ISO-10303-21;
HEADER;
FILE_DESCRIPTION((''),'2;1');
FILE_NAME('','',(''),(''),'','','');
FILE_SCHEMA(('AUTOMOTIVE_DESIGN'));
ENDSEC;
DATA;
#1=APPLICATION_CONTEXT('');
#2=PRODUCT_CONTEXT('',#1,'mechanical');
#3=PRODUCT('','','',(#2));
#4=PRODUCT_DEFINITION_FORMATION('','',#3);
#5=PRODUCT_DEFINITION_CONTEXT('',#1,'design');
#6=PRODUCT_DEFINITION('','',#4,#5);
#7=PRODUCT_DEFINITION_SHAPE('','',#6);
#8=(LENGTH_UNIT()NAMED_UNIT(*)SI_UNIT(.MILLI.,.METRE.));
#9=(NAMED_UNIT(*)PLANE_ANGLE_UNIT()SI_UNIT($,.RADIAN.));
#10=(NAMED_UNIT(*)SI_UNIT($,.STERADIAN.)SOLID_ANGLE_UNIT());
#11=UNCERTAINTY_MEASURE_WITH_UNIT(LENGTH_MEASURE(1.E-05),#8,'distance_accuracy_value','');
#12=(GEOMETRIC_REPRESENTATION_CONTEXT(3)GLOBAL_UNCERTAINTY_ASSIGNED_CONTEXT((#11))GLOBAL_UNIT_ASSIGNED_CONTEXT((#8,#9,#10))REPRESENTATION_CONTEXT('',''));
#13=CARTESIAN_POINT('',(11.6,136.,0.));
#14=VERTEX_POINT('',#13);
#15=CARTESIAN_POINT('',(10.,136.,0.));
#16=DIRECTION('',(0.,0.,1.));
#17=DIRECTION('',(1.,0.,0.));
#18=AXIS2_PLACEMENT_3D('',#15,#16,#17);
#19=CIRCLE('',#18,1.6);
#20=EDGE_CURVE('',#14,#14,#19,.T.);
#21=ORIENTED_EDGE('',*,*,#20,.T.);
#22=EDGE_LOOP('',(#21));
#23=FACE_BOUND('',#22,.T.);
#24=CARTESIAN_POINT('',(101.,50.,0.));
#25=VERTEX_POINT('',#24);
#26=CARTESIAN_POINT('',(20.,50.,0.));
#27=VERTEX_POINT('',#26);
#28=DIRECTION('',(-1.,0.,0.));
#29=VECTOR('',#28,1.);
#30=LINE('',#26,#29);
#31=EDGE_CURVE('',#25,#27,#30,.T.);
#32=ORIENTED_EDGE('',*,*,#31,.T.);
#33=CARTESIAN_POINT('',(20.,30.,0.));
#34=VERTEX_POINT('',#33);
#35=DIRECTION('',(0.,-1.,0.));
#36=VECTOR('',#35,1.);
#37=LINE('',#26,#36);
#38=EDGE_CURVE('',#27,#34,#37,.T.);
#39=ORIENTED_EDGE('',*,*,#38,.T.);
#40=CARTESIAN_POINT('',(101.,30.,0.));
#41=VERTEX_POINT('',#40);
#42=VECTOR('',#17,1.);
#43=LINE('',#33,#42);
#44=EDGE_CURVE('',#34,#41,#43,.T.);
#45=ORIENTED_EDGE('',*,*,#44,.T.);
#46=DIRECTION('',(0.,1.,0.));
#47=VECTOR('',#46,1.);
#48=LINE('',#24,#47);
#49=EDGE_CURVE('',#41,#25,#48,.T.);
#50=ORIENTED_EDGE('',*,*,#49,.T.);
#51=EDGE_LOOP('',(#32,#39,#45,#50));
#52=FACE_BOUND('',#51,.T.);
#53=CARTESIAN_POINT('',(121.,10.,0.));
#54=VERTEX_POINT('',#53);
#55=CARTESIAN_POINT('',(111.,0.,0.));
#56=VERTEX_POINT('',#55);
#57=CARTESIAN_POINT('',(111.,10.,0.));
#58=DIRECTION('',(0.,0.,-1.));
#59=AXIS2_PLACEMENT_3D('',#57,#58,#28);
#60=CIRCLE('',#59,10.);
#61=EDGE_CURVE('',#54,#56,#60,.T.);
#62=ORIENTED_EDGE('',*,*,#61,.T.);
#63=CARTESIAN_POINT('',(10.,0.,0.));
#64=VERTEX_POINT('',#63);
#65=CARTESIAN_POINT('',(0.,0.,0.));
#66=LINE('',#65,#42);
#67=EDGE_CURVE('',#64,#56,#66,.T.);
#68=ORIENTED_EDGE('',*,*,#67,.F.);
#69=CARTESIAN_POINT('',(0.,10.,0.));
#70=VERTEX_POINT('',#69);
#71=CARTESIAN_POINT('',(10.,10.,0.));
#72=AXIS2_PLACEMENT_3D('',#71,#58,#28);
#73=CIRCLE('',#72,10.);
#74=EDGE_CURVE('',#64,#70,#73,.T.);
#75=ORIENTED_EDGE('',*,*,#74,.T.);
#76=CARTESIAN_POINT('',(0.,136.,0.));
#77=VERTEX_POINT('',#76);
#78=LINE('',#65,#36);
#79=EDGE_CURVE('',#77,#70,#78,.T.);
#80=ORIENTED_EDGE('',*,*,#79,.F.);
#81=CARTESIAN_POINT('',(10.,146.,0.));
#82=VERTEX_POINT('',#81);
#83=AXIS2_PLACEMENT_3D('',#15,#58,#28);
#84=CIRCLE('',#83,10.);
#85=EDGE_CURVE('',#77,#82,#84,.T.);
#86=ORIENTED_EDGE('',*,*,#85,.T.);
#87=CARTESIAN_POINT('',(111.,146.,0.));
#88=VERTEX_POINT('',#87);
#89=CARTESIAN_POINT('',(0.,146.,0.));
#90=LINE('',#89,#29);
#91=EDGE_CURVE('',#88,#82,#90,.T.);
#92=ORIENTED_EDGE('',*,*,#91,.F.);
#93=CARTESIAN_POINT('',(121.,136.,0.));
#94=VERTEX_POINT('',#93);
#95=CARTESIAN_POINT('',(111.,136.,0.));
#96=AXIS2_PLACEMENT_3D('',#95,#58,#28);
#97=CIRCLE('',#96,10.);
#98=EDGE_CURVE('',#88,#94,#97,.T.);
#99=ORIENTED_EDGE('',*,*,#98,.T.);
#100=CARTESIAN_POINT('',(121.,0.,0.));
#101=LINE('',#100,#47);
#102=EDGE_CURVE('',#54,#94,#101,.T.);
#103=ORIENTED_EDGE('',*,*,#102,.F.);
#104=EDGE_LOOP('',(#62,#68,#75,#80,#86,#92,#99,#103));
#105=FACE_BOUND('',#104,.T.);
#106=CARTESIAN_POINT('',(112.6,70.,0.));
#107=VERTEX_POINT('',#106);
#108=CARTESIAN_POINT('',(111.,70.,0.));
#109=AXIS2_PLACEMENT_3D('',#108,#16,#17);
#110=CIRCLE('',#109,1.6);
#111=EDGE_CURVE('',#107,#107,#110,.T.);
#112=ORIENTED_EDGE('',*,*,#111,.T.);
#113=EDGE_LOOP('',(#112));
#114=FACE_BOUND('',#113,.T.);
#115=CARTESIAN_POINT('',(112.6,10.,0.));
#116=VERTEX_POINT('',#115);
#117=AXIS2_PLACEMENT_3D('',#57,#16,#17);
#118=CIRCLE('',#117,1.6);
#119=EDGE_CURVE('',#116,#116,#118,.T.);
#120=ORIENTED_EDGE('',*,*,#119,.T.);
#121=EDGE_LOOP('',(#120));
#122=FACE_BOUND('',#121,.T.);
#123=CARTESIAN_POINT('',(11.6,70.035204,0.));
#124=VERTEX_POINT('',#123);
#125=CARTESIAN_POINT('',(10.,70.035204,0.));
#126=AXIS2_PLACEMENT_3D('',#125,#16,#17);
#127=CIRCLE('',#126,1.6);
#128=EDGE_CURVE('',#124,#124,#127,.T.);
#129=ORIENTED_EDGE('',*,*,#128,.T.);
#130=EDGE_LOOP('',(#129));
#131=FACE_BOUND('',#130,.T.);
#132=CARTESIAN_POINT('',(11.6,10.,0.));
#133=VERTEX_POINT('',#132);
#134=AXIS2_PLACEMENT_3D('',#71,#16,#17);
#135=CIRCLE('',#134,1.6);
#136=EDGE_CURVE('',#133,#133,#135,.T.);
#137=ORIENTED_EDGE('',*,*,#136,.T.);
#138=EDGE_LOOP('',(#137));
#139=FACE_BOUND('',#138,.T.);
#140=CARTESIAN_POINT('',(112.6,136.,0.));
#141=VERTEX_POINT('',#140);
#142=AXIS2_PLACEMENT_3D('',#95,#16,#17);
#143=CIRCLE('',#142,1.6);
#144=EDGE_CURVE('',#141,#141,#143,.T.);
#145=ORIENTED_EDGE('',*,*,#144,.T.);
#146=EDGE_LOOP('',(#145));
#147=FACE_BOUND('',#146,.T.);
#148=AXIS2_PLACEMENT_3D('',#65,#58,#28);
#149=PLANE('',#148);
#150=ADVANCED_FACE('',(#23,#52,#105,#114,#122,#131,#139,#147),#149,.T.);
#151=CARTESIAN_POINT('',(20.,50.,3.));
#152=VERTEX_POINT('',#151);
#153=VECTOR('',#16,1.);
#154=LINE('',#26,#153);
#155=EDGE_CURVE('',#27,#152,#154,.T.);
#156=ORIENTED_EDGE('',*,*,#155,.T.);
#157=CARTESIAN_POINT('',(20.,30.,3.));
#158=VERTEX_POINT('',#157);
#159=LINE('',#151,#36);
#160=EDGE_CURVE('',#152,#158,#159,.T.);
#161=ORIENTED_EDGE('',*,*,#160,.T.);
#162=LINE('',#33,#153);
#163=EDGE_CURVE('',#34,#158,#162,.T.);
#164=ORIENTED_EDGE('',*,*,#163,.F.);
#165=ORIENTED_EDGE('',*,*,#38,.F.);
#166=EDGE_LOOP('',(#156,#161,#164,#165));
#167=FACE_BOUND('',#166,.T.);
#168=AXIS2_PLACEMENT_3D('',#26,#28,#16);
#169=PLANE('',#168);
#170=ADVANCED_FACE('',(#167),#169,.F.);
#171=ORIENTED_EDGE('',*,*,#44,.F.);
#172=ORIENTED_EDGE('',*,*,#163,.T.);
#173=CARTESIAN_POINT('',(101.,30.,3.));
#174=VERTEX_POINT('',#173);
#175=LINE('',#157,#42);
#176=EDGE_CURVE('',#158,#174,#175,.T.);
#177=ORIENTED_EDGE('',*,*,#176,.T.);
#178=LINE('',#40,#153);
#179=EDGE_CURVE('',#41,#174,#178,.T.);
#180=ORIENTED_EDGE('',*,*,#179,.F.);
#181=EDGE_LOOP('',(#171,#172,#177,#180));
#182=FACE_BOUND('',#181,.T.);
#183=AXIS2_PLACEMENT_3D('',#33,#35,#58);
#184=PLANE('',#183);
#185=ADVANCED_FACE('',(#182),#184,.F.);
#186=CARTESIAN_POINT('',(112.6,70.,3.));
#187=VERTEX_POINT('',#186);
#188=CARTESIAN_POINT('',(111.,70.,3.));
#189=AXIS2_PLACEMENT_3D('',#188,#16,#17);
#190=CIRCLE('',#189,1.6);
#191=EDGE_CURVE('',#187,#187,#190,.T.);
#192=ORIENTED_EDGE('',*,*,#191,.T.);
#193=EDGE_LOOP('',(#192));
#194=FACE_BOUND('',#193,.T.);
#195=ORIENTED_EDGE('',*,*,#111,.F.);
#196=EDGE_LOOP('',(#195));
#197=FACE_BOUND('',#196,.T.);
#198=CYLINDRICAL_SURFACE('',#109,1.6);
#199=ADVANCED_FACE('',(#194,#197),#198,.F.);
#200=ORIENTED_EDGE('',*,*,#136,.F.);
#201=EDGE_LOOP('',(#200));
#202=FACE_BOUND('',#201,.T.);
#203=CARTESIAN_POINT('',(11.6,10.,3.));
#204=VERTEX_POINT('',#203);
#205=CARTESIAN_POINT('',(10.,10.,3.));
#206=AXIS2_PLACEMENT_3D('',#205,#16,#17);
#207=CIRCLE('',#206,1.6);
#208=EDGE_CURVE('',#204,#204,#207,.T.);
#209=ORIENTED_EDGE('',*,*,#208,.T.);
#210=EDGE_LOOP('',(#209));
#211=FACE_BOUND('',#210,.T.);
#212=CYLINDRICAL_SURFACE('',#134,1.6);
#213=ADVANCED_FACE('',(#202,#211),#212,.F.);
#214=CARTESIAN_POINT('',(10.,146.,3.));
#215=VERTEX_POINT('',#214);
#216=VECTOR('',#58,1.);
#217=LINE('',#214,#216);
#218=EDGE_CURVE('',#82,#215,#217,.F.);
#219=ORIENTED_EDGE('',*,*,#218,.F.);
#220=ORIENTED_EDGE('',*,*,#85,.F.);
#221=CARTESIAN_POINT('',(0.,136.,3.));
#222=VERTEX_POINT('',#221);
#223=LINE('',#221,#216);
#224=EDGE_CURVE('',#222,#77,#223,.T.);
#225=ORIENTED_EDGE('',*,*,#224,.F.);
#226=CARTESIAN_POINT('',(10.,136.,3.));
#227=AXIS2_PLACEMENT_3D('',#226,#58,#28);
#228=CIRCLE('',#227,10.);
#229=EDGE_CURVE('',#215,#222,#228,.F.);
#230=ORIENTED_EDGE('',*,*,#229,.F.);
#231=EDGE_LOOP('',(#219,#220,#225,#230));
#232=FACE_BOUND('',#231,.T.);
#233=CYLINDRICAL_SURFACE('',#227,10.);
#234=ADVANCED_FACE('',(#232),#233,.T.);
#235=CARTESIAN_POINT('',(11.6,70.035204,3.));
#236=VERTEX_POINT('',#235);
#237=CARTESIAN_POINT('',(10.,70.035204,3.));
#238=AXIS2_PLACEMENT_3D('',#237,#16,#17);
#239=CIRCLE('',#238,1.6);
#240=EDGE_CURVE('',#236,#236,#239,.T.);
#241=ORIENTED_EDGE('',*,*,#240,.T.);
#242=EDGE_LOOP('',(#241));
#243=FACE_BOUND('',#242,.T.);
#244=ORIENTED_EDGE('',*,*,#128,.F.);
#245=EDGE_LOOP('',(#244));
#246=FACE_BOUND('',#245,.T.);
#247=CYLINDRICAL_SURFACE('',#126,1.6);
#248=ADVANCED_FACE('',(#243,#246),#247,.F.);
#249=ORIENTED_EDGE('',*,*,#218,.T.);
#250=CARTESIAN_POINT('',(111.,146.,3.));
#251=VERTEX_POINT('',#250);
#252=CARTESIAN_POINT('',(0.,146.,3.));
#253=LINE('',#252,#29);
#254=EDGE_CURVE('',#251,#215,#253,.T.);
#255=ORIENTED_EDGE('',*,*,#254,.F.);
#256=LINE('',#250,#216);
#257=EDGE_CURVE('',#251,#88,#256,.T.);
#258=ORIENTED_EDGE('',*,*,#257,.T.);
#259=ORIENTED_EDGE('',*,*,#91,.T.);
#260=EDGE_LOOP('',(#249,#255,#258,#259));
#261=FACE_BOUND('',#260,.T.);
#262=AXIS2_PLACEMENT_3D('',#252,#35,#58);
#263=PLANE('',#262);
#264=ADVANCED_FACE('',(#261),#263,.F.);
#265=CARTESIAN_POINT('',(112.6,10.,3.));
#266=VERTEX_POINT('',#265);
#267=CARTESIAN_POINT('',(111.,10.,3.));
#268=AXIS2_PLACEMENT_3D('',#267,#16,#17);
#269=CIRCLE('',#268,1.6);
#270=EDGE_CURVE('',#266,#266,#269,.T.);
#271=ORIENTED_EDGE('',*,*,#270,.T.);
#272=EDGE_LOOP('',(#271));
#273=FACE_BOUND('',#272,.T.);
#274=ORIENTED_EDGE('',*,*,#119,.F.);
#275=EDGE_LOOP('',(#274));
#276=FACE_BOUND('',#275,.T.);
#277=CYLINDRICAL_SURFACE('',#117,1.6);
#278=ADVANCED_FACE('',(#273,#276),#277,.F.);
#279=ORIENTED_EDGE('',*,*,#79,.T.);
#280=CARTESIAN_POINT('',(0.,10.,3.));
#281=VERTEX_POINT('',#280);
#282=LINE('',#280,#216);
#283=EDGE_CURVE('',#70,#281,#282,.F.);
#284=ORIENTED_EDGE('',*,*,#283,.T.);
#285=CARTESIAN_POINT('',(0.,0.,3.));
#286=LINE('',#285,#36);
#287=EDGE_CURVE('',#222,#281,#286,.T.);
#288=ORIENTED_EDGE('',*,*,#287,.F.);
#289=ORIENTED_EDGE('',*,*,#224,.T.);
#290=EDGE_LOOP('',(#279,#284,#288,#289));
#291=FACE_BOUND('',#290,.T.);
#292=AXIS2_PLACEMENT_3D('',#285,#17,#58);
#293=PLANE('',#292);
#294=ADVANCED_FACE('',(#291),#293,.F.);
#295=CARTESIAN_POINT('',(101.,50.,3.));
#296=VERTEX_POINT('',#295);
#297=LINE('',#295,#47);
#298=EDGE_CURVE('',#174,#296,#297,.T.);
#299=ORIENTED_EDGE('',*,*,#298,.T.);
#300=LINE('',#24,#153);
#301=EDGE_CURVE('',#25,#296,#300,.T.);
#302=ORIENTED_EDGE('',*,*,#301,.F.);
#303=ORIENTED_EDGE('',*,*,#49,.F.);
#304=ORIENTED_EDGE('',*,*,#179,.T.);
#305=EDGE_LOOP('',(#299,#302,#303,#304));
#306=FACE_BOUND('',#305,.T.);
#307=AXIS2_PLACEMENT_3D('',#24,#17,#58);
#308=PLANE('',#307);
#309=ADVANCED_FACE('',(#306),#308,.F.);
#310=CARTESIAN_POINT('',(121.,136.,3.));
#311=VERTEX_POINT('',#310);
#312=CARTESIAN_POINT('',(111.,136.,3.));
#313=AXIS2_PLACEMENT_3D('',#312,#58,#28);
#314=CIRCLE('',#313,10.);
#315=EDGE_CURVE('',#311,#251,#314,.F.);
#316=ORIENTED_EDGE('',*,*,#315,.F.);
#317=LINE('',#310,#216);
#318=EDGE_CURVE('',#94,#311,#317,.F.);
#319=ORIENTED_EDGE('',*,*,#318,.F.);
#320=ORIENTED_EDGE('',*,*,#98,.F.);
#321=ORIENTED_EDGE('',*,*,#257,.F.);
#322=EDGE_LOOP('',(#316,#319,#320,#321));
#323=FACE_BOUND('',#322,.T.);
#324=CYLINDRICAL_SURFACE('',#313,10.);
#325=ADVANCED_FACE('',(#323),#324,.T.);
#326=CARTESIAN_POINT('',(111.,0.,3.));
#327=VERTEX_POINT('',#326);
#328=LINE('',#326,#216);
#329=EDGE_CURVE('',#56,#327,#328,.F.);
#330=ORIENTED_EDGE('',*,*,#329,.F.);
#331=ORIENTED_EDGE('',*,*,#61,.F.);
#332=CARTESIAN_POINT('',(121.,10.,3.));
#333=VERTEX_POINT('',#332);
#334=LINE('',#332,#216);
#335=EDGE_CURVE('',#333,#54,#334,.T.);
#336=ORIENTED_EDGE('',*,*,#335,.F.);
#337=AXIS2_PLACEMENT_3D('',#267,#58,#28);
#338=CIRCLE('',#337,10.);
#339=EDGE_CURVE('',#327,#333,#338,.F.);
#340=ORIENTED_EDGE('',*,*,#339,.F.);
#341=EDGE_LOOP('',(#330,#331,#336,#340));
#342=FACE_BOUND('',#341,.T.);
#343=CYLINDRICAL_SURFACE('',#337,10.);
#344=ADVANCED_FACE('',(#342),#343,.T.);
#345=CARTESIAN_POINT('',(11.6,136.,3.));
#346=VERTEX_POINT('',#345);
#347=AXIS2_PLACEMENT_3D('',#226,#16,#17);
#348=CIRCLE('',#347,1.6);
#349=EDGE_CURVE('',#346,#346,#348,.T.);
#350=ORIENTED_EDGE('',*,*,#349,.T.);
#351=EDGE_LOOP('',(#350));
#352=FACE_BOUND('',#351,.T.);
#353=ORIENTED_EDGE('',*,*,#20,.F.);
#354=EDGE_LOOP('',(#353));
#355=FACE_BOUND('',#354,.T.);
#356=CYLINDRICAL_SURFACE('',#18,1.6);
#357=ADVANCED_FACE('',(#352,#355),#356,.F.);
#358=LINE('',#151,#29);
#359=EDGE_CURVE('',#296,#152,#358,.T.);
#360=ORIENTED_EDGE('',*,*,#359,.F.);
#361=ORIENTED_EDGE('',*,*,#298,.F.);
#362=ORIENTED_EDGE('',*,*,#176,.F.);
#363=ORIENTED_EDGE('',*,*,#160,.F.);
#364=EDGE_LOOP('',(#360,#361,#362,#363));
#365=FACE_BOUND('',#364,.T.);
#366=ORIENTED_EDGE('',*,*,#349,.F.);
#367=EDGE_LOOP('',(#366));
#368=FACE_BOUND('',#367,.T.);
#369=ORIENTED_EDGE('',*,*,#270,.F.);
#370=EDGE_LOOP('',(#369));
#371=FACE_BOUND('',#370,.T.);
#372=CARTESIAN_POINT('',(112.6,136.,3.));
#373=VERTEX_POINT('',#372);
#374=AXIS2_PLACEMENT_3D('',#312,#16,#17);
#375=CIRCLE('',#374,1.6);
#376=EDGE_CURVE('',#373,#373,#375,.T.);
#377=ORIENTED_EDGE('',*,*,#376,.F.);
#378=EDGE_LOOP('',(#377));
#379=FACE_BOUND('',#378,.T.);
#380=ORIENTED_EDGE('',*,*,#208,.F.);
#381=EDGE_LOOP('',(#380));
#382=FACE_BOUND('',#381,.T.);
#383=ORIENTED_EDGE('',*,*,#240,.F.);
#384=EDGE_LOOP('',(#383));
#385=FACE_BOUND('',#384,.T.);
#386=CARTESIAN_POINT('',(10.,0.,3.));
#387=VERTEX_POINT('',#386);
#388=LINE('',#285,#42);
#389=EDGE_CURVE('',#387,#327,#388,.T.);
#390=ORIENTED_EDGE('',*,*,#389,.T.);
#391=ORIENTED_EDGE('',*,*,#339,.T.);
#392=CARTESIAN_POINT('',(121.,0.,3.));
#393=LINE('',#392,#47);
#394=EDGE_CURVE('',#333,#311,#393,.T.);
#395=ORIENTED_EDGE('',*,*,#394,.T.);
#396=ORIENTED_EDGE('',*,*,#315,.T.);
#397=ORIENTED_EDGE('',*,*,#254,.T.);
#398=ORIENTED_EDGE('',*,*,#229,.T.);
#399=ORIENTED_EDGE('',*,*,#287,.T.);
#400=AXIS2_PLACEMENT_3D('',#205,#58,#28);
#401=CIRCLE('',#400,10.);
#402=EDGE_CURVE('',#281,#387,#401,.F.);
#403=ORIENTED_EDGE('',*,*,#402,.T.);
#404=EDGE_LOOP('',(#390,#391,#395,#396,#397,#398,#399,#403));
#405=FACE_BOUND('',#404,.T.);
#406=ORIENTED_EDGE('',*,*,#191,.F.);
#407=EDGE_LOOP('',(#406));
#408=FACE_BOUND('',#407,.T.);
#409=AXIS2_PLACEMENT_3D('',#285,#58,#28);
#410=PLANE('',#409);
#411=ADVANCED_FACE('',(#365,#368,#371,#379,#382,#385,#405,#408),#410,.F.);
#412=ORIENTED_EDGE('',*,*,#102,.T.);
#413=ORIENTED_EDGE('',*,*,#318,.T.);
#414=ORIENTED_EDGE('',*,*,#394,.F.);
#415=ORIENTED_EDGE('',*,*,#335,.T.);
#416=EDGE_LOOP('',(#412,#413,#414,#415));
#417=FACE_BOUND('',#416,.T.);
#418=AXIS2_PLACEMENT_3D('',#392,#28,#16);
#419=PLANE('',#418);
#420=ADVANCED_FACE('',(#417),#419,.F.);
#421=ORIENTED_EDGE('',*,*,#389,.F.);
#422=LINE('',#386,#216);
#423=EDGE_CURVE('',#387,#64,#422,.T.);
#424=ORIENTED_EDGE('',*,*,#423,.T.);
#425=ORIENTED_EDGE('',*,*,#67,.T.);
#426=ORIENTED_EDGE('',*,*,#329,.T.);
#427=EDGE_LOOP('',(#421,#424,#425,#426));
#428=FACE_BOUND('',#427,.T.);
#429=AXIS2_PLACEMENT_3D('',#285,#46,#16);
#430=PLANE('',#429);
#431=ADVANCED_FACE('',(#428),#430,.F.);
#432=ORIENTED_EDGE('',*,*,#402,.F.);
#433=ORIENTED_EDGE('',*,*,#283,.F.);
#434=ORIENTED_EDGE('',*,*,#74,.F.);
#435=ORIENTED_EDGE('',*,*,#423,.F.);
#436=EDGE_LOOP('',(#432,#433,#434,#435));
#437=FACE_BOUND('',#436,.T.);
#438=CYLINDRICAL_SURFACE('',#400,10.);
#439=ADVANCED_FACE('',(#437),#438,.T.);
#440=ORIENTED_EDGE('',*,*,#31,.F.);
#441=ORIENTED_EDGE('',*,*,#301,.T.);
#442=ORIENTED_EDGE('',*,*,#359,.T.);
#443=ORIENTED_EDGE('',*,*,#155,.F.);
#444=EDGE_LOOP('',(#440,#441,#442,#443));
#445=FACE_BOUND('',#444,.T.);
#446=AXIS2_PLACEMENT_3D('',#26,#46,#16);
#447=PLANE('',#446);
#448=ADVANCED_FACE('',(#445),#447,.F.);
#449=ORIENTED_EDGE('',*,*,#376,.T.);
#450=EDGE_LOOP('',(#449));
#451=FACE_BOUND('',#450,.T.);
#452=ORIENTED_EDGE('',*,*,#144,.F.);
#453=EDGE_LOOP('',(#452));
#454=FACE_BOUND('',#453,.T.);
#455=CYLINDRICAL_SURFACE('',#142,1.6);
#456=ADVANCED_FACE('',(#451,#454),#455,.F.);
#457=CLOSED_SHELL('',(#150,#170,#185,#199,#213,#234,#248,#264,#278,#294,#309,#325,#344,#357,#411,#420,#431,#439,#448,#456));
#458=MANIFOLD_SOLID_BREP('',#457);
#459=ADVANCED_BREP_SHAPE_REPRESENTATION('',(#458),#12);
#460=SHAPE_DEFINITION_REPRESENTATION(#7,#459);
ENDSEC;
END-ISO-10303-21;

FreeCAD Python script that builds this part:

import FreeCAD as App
import Part
import Sketcher
from FreeCAD import Vector
Q = App.Units.Quantity


def edges_at(feature, points):
    """Names of the edges that pass closest to the given points."""
    edges = feature.Shape.Edges
    near = lambda p: min(range(len(edges)), key=lambda i: edges[i].distToShape(Part.Vertex(*p))[0])
    return sorted({f"Edge{near(p) + 1}" for p in points})


def add_polygon(sketch, points):
    """Adds a closed chain of lines whose ends are joined by coincident constraints."""
    first, n = sketch.GeometryCount, len(points)
    for a, b in zip(points, points[1:] + points[:1]):
        sketch.addGeometry(Part.LineSegment(App.Vector(*a, 0), App.Vector(*b, 0)), False)
    for i in range(n):
        sketch.addConstraint(Sketcher.Constraint("Coincident", first + i, 2, first + (i + 1) % n, 1))

doc = App.newDocument("Part")
body = doc.addObject("PartDesign::Body", "Body")

sketch1 = body.newObject("Sketcher::SketchObject", "Sketch")
sketch1.AttachmentSupport = (doc.getObject("XY_Plane"), [""])
sketch1.MapMode = "FlatFace"
add_polygon(sketch1, [(0, 146), (0, 0), (121, 0), (121, 146)])
sketch1.addConstraint([
    Sketcher.Constraint("Vertical", 0),
    Sketcher.Constraint("Horizontal", 1),
    Sketcher.Constraint("Vertical", 2),
    Sketcher.Constraint("Horizontal", 3),
    Sketcher.Constraint("Coincident", 0, 2, -1, 1),
    Sketcher.Constraint("DistanceX", 1, 1, 1, 2, Q("121 mm")),
    Sketcher.Constraint("DistanceY", 0, 2, 0, 1, Q("146 mm")),
])
pad1 = body.newObject("PartDesign::Pad", "Pad")
pad1.Profile = sketch1
pad1.Length = 3
doc.recompute()

fillet = body.newObject("PartDesign::Fillet", "Fillet")
fillet.Base = (pad1, edges_at(pad1, [
    (0, 146, 1.5),
    (121, 146, 1.5),
    (121, 0, 1.5),
    (0, 0, 1.5),
]))
fillet.Radius = 10

sketch2 = body.newObject("Sketcher::SketchObject", "Sketch001")
sketch2.AttachmentSupport = (doc.getObject("XY_Plane"), [""])
sketch2.MapMode = "FlatFace"
sketch2.AttachmentOffset = App.Placement(Vector(0, 0, 3), App.Rotation())
sketch2.addGeometry([
    Part.Circle(Vector(10, 136, 0), Vector(0, 0, 1), 1.6),
    Part.Circle(Vector(10, 70, 0), Vector(0, 0, 1), 1.6),
    Part.Circle(Vector(111, 136, 0), Vector(0, 0, 1), 1.6),
    Part.Circle(Vector(111, 70, 0), Vector(0, 0, 1), 1.6),
    Part.Circle(Vector(111, 10, 0), Vector(0, 0, 1), 1.6),
    Part.Circle(Vector(10, 10, 0), Vector(0, 0, 1), 1.6),
], False)
sketch2.addConstraint([
    Sketcher.Constraint("Equal", 0, 1),
    Sketcher.Constraint("Equal", 1, 2),
    Sketcher.Constraint("Equal", 2, 3),
    Sketcher.Constraint("Equal", 3, 4),
    Sketcher.Constraint("Equal", 4, 5),
    Sketcher.Constraint("Horizontal", 0, 3, 2, 3),
    Sketcher.Constraint("Horizontal", 4, 3, 5, 3),
    Sketcher.Constraint("Vertical", 0, 3, 1, 3),
    Sketcher.Constraint("Vertical", 2, 3, 3, 3),
    Sketcher.Constraint("Vertical", 3, 3, 4, 3),
    Sketcher.Constraint("Vertical", 1, 3, 5, 3),
    Sketcher.Constraint("Diameter", 0, Q("3.2 mm")),
    Sketcher.Constraint("DistanceX", -1, 1, 0, 3, Q("10 mm")),
    Sketcher.Constraint("DistanceY", -1, 1, 0, 3, Q("136 mm")),
    Sketcher.Constraint("DistanceX", -1, 1, 2, 3, Q("111 mm")),
    Sketcher.Constraint("DistanceY", -1, 1, 3, 3, Q("70 mm")),
    Sketcher.Constraint("DistanceY", -1, 1, 4, 3, Q("10 mm")),
    Sketcher.Constraint("DistanceY", -1, 1, 1, 3, Q("70.035204 mm")),
])
pocket1 = body.newObject("PartDesign::Pocket", "Pocket")
pocket1.Profile = sketch2
pocket1.Type = "ThroughAll"

sketch3 = body.newObject("Sketcher::SketchObject", "Sketch002")
sketch3.AttachmentSupport = (doc.getObject("XY_Plane"), [""])
sketch3.MapMode = "FlatFace"
sketch3.AttachmentOffset = App.Placement(Vector(0, 0, 3), App.Rotation())
add_polygon(sketch3, [(20, 50), (20, 30), (101, 30), (101, 50)])
sketch3.addConstraint([
    Sketcher.Constraint("Vertical", 0),
    Sketcher.Constraint("Horizontal", 1),
    Sketcher.Constraint("Vertical", 2),
    Sketcher.Constraint("Horizontal", 3),
    Sketcher.Constraint("DistanceX", 1, 1, 1, 2, Q("81 mm")),
    Sketcher.Constraint("DistanceY", 0, 2, 0, 1, Q("20 mm")),
    Sketcher.Constraint("DistanceX", -1, 1, 0, 2, Q("20 mm")),
    Sketcher.Constraint("DistanceY", -1, 1, 0, 2, Q("30 mm")),
])
pocket2 = body.newObject("PartDesign::Pocket", "Pocket001")
pocket2.Profile = sketch3
pocket2.Type = "ThroughAll"

doc.recompute()
